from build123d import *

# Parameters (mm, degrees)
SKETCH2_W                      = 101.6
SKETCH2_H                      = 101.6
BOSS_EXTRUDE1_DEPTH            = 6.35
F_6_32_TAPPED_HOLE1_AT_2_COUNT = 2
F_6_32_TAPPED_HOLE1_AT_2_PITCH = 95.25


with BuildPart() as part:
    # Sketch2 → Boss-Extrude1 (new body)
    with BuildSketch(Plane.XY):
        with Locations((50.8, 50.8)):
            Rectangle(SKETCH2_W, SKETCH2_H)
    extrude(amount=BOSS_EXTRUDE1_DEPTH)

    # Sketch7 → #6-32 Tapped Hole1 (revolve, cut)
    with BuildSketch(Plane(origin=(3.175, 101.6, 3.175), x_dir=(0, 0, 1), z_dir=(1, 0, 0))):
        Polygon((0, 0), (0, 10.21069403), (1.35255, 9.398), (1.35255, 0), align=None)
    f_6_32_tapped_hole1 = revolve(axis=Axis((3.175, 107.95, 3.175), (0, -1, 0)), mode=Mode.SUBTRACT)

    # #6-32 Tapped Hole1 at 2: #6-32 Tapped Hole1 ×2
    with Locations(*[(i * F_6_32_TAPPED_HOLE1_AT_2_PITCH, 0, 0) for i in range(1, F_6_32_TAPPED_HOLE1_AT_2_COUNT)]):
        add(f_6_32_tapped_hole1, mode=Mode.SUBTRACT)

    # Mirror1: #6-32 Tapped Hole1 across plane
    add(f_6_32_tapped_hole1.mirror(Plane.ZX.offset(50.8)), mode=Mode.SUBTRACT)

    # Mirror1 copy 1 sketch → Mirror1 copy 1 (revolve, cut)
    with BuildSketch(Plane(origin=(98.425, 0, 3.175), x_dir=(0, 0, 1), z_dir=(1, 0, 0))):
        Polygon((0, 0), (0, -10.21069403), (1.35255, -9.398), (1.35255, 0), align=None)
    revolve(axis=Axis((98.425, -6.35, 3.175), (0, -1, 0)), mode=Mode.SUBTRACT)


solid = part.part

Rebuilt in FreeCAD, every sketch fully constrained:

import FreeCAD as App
import Part
import Sketcher

V = App.Vector
Q = App.Units.Quantity


def add_polygon(sketch, points):
    """Adds a closed chain of lines whose ends are joined by coincident constraints."""
    first, n = sketch.GeometryCount, len(points)
    for a, b in zip(points, points[1:] + points[:1]):
        sketch.addGeometry(Part.LineSegment(App.Vector(*a, 0), App.Vector(*b, 0)), False)
    for i in range(n):
        sketch.addConstraint(Sketcher.Constraint("Coincident", first + i, 2, first + (i + 1) % n, 1))

doc = App.newDocument("Part")
body = doc.addObject("PartDesign::Body", "Body")

# Sketch on XY plane
sketch1 = doc.addObject("Sketcher::SketchObject", "Sketch")
body.addObject(sketch1)
sketch1.AttachmentSupport = (doc.XY_Plane, [""])
sketch1.MapMode = "FlatFace"
add_polygon(sketch1, [(0, 101.6), (0, 0), (101.6, 0), (101.6, 101.6)])  # lines 0-3
sketch1.addConstraint([
    Sketcher.Constraint("Vertical", 0),
    Sketcher.Constraint("Horizontal", 1),
    Sketcher.Constraint("Vertical", 2),
    Sketcher.Constraint("Horizontal", 3),
    Sketcher.Constraint("Coincident", 0, 2, -1, 1),
    Sketcher.Constraint("Equal", 3, 0),
    Sketcher.Constraint("DistanceX", 1, 1, 1, 2, Q("4 in")),
])
pad1 = doc.addObject("PartDesign::Pad", "Pad")
body.addObject(pad1)
pad1.Profile = sketch1
pad1.Length = Q("0.25 in")

# Sketch on YZ plane
sketch2 = doc.addObject("Sketcher::SketchObject", "Sketch001")
body.addObject(sketch2)
sketch2.AttachmentSupport = (doc.YZ_Plane, [""])
sketch2.MapMode = "FlatFace"
sketch2.AttachmentOffset = App.Placement(V(0, 0, 0.125 * 25.4), App.Rotation())
add_polygon(sketch2, [(91.389306, 3.175), (101.6, 3.175), (101.6, 4.52755), (92.202, 4.52755)])  # lines 0-3
sketch2.addGeometry(Part.LineSegment(V(101.6, 3.175, 0), V(91.389306, 3.175, 0)), True)  # axis
sketch2.addConstraint([
    Sketcher.Constraint("Horizontal", 0),
    Sketcher.Constraint("Vertical", 1),
    Sketcher.Constraint("Horizontal", 2),
    Sketcher.Constraint("Horizontal", 4),
    Sketcher.Constraint("Coincident", 4, 1, 0, 2),
    Sketcher.Constraint("Equal", 0, 4),
    Sketcher.Constraint("DistanceX", -1, 1, 0, 2, Q("4 in")),
    Sketcher.Constraint("Angle", 3, Q("-121 deg")),
    Sketcher.Constraint("DistanceX", 2, 2, 2, 1, Q("0.37 in")),
    Sketcher.Constraint("DistanceY", -1, 1, 0, 2, Q("0.125 in")),
    Sketcher.Constraint("DistanceY", 1, 1, 1, 2, 1.35255),
])
groove = doc.addObject("PartDesign::Groove", "Groove")
body.addObject(groove)
groove.Profile = sketch2
groove.ReferenceAxis = (sketch2, ["Axis0"])
groove.Angle = 360
doc.recompute()

linearpattern = doc.addObject("PartDesign::LinearPattern", "LinearPattern")
body.addObject(linearpattern)
linearpattern.Originals = [groove]
linearpattern.Direction = (doc.X_Axis, [""])
linearpattern.Mode = "offset"
linearpattern.Offset = Q("3.75 in")
linearpattern.Occurrences = 2
body.Tip = linearpattern
doc.recompute()

datumplane = doc.addObject("PartDesign::Plane", "DatumPlane")
body.addObject(datumplane)
datumplane.AttachmentSupport = (doc.XZ_Plane, [""])
datumplane.MapMode = "FlatFace"
datumplane.AttachmentOffset = App.Placement(V(0, 0, -2 * 25.4), App.Rotation())
mirrored = doc.addObject("PartDesign::Mirrored", "Mirrored")
body.addObject(mirrored)
mirrored.Originals = [groove]
mirrored.MirrorPlane = (datumplane, [""])
body.Tip = mirrored

# Sketch on YZ plane
sketch3 = doc.addObject("Sketcher::SketchObject", "Sketch002")
body.addObject(sketch3)
sketch3.AttachmentSupport = (doc.YZ_Plane, [""])
sketch3.MapMode = "FlatFace"
sketch3.AttachmentOffset = App.Placement(V(0, 0, 3.875 * 25.4), App.Rotation())
add_polygon(sketch3, [(0, 3.175), (10.210694, 3.175), (9.398, 4.52755), (0, 4.52755)])  # lines 0-3
sketch3.addGeometry(Part.LineSegment(V(10.210694, 3.175, 0), V(0, 3.175, 0)), True)  # axis
sketch3.addConstraint([
    Sketcher.Constraint("Horizontal", 0),
    Sketcher.Constraint("Horizontal", 2),
    Sketcher.Constraint("Vertical", 3),
    Sketcher.Constraint("Horizontal", 4),
    Sketcher.Constraint("Coincident", 4, 1, 0, 2),
    Sketcher.Constraint("PointOnObject", 2, 2, -2),
    Sketcher.Constraint("PointOnObject", 4, 2, -2),
    Sketcher.Constraint("Angle", 1, Q("121 deg")),
    Sketcher.Constraint("DistanceX", 2, 2, 2, 1, Q("0.37 in")),
    Sketcher.Constraint("DistanceY", -1, 1, 0, 2, Q("0.125 in")),
    Sketcher.Constraint("DistanceY", 3, 2, 3, 1, 1.35255),
])
groove2 = doc.addObject("PartDesign::Groove", "Groove001")
body.addObject(groove2)
groove2.Profile = sketch3
groove2.ReferenceAxis = (sketch3, ["Axis0"])
groove2.Angle = 360

doc.recompute()
